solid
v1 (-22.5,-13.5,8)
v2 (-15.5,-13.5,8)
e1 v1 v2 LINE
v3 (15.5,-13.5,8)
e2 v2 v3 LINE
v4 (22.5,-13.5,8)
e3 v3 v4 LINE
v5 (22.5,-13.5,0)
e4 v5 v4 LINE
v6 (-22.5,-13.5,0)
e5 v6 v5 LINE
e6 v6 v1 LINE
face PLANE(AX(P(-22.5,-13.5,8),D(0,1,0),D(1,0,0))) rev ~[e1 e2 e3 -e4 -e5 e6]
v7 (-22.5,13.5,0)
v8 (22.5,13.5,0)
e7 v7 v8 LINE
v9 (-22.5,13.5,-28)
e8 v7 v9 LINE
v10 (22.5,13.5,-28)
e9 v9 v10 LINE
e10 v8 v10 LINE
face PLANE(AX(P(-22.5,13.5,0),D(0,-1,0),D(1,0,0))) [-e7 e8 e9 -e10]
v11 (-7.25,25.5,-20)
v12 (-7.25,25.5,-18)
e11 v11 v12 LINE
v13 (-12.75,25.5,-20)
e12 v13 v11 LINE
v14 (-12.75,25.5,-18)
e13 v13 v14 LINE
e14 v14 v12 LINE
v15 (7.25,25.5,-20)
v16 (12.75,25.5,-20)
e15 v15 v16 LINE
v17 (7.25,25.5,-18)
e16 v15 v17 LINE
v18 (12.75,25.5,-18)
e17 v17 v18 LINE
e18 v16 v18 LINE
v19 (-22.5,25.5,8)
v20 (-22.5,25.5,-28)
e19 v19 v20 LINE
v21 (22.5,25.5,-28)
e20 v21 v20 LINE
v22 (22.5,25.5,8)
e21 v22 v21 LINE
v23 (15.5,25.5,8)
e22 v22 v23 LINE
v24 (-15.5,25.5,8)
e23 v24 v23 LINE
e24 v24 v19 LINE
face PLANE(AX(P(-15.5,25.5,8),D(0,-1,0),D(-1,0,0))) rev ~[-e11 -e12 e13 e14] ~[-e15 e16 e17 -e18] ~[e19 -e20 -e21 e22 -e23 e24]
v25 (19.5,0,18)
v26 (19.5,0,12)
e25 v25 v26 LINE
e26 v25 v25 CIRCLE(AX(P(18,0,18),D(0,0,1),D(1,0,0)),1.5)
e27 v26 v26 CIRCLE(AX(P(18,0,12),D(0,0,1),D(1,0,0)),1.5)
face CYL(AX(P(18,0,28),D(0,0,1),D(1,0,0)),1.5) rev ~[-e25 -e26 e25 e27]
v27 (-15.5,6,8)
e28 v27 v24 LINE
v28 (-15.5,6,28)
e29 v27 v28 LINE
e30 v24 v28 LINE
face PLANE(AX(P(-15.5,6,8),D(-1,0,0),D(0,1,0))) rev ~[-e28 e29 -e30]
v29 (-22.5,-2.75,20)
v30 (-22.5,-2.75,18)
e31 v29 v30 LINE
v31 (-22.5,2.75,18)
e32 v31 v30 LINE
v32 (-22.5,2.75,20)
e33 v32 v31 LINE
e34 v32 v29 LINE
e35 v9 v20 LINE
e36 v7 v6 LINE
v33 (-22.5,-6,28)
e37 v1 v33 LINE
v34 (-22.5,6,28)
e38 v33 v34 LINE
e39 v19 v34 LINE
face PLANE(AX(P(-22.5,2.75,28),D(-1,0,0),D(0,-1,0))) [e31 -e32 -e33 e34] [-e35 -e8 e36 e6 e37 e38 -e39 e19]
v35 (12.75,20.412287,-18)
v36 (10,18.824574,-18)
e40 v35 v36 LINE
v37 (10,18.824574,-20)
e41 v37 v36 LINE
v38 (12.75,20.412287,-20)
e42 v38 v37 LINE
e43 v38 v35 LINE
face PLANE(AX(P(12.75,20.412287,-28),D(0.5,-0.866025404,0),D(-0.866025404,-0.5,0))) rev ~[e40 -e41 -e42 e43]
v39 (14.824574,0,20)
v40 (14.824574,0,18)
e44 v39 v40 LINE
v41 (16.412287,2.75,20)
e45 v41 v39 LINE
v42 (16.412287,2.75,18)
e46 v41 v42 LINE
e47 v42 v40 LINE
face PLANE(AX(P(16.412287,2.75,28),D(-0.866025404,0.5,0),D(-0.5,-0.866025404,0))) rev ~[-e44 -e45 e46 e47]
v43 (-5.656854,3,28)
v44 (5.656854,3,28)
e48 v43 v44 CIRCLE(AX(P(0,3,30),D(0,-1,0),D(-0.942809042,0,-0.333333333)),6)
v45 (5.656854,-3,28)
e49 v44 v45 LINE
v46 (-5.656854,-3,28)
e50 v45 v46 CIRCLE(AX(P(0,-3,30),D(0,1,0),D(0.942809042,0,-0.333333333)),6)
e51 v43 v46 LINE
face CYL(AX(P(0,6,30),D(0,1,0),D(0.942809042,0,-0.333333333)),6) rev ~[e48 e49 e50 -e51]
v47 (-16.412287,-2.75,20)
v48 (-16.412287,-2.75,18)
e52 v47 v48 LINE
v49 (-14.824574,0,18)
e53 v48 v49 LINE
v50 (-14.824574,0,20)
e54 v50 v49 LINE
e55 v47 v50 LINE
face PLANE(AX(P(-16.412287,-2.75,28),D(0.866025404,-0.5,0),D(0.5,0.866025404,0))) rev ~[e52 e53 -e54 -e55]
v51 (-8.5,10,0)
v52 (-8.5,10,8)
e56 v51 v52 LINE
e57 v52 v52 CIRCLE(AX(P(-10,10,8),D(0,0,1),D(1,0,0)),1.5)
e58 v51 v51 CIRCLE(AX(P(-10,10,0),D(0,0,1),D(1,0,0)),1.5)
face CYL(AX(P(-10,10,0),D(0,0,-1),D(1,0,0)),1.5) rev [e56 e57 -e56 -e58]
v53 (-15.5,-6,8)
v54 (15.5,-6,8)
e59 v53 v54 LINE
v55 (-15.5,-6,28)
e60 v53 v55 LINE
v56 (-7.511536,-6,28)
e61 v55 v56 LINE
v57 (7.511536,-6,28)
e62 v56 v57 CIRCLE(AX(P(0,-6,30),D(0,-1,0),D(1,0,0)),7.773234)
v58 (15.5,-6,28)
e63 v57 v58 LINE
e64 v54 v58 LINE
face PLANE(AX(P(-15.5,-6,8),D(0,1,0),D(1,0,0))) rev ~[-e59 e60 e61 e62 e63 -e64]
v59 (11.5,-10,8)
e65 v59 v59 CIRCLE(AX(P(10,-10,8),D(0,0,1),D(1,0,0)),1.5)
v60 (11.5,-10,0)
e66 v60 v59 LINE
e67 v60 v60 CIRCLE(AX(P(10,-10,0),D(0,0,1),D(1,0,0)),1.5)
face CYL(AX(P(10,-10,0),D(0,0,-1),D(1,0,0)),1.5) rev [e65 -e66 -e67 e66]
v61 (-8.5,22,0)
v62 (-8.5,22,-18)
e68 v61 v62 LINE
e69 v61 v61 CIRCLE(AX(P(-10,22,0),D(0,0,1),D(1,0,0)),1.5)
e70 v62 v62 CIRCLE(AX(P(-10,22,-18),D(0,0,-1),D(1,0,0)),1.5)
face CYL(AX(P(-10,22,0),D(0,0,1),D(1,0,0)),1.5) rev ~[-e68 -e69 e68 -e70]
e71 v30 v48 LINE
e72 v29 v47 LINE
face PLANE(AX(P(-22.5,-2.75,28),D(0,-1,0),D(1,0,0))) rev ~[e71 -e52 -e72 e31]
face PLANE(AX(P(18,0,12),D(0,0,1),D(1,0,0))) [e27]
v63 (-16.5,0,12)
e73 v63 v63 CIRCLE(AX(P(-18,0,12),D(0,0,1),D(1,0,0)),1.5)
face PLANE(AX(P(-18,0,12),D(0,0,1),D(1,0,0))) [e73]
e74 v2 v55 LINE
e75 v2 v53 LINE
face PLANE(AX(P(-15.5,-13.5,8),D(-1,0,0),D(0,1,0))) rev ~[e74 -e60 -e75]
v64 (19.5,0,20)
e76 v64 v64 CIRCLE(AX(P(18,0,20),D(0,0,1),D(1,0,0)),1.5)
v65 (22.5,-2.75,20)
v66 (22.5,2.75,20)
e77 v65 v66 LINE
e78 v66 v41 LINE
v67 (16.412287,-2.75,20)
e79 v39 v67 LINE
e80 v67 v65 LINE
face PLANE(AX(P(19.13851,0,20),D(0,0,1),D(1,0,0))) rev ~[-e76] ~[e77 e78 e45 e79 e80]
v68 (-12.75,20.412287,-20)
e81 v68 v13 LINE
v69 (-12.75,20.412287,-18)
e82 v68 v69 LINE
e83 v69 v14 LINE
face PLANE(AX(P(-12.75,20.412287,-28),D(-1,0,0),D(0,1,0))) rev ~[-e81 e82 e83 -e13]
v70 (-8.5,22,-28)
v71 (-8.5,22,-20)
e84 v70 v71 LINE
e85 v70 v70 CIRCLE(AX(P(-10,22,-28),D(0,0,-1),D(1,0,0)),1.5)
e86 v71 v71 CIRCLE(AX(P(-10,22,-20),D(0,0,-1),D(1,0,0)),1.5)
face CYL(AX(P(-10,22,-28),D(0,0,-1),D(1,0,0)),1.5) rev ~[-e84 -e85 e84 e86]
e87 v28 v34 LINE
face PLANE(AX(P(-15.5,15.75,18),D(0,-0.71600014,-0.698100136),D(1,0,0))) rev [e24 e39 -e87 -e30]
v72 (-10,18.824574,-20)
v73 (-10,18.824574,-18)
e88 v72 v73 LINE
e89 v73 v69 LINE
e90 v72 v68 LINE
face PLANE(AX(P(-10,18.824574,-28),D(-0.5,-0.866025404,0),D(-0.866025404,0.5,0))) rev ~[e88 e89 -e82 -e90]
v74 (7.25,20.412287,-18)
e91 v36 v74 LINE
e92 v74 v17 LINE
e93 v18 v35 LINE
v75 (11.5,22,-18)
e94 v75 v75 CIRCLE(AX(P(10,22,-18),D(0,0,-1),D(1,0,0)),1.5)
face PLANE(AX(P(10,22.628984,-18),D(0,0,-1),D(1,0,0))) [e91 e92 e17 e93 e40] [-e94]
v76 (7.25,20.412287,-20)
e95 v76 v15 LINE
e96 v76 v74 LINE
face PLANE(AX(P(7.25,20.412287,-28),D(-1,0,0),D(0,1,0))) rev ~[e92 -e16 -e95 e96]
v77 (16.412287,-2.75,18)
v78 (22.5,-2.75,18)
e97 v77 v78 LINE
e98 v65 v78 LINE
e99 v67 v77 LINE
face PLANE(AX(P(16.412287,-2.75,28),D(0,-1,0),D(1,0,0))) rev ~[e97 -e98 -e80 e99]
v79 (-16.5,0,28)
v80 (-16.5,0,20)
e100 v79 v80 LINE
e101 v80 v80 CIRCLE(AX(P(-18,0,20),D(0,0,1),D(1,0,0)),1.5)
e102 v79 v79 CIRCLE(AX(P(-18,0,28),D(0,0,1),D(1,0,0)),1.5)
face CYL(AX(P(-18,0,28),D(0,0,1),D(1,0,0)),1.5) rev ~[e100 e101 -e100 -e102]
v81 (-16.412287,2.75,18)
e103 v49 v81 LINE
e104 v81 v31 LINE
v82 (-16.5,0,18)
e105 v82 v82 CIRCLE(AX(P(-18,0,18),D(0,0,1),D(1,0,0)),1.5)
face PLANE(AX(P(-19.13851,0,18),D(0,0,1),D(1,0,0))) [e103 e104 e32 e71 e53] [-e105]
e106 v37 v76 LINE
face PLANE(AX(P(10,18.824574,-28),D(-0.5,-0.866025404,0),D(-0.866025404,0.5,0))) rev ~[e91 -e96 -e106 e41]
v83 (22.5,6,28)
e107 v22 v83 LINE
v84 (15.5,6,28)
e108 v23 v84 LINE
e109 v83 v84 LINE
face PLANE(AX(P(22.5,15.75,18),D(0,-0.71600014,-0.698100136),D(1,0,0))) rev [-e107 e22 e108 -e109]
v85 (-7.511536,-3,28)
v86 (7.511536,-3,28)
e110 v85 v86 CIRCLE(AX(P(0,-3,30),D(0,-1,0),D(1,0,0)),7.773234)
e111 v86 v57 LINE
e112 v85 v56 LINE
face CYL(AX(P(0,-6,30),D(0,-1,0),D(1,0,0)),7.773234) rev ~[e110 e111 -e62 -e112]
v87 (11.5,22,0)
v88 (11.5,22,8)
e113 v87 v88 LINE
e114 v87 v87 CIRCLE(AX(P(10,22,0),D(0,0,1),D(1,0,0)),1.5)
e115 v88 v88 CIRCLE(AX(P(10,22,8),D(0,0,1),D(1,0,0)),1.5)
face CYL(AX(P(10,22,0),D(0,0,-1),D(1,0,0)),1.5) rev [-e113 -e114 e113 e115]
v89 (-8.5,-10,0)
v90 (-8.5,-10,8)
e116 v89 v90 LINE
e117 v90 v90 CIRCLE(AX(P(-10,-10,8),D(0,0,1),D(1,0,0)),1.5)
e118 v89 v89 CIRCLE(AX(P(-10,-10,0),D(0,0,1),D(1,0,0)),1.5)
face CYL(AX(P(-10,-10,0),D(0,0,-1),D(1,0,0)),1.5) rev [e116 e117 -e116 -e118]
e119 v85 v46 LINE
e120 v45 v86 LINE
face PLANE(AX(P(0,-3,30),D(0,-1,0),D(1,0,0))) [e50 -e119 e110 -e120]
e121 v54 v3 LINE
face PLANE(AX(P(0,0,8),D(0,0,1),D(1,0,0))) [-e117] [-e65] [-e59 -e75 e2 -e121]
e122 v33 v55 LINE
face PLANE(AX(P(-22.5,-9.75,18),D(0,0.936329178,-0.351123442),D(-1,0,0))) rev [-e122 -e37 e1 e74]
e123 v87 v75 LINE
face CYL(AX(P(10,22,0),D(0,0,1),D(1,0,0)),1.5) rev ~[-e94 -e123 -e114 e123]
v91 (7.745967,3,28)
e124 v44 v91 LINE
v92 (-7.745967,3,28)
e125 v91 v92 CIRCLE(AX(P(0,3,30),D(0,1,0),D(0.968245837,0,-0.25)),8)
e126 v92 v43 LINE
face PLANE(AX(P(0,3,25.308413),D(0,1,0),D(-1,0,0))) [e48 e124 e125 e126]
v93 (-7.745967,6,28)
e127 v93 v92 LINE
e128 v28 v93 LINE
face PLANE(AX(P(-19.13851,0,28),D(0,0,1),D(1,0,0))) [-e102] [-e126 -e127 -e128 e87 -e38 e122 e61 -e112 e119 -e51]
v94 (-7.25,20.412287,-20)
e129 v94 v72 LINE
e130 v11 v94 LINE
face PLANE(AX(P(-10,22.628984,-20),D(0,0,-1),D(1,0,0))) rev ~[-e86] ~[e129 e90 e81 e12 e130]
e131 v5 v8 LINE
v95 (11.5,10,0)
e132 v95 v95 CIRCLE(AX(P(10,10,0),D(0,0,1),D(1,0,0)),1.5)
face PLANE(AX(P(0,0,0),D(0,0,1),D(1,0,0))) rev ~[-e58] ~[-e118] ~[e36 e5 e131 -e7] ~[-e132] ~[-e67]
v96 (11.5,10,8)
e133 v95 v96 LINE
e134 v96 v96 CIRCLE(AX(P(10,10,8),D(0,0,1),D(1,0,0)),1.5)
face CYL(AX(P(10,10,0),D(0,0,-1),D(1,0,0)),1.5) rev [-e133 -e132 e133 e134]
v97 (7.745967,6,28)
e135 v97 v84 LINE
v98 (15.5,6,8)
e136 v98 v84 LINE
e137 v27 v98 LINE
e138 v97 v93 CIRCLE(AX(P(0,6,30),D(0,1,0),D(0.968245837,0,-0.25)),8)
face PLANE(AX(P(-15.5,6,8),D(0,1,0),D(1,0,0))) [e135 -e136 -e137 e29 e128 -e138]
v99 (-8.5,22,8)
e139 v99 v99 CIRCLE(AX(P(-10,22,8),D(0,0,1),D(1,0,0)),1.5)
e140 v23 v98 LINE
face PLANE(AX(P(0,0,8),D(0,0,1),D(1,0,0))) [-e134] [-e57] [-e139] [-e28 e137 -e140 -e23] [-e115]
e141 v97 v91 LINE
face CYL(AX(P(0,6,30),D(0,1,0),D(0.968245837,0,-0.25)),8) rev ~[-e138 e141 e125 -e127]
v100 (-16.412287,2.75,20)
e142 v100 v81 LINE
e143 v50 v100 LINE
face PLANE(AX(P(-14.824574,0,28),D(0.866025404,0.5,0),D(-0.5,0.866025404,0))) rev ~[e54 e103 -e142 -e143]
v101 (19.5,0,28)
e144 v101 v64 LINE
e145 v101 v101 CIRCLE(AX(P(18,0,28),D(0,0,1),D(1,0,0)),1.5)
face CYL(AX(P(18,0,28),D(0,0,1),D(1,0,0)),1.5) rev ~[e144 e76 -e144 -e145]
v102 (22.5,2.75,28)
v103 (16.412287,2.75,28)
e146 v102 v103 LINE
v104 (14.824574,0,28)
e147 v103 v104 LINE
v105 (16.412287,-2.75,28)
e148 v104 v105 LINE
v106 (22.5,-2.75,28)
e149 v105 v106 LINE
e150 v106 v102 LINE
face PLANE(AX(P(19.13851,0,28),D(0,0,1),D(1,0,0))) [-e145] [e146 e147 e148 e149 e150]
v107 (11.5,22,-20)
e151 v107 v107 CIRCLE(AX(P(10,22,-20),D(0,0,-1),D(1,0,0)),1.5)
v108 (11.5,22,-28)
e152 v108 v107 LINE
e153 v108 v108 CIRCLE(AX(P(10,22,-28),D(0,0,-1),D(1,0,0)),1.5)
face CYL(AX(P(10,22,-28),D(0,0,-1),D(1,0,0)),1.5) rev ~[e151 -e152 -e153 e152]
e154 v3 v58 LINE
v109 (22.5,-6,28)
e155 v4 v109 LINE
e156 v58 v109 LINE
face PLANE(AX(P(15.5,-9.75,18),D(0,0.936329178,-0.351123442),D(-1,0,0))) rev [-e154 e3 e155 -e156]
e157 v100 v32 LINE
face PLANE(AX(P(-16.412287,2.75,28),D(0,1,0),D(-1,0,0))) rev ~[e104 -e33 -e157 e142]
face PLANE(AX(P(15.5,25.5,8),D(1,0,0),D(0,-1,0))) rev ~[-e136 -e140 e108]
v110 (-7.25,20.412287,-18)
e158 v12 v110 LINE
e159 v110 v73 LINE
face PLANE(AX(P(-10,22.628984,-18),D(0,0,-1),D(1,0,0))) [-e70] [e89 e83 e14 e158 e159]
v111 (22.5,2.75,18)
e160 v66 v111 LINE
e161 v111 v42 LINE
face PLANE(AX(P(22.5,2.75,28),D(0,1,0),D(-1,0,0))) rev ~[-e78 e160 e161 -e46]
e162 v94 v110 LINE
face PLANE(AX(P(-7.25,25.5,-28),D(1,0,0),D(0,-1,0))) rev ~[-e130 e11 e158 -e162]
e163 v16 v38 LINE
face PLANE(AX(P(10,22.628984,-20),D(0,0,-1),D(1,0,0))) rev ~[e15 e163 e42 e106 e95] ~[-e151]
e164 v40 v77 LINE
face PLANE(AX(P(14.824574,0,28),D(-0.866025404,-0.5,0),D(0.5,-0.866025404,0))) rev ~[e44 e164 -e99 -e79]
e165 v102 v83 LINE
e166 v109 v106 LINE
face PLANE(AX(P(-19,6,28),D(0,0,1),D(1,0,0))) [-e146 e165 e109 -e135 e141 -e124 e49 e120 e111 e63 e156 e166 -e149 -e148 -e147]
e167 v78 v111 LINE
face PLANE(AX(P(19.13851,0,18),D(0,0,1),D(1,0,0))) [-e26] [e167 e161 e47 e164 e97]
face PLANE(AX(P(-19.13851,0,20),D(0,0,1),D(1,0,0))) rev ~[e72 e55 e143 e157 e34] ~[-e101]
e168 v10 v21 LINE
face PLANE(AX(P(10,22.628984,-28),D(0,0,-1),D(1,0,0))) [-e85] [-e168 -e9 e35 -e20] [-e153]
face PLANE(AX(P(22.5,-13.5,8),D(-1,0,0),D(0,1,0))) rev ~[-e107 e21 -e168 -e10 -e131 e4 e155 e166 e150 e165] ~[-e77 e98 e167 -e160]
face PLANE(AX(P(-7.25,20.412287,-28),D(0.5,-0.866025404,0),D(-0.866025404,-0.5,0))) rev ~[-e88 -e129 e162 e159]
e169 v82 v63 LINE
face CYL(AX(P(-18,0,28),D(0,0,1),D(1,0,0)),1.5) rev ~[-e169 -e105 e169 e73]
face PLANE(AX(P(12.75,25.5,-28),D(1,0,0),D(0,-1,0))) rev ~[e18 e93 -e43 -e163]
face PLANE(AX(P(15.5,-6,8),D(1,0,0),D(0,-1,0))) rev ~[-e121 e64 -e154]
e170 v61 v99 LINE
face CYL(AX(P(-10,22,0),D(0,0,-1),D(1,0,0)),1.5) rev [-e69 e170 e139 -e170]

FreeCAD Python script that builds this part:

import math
import FreeCAD as App
import Part
import Sketcher
from FreeCAD import Vector
Q = App.Units.Quantity


def edges_at(feature, points):
    """Names of the edges that pass closest to the given points."""
    edges = feature.Shape.Edges
    near = lambda p: min(range(len(edges)), key=lambda i: edges[i].distToShape(Part.Vertex(*p))[0])
    return sorted({f"Edge{near(p) + 1}" for p in points})

doc = App.newDocument("Part")
body = doc.addObject("PartDesign::Body", "Body")

sketch1 = body.newObject("Sketcher::SketchObject", "Sketch")
sketch1.AttachmentSupport = (doc.getObject("XY_Plane"), [""])
sketch1.MapMode = "FlatFace"
sketch1.addGeometry([
    Part.LineSegment(Vector(-22.5, -13.5, 0), Vector(22.5, -13.5, 0)),
    Part.LineSegment(Vector(22.5, -13.5, 0), Vector(22.5, 25.5, 0)),
    Part.LineSegment(Vector(22.5, 25.5, 0), Vector(-22.5, 25.5, 0)),
    Part.LineSegment(Vector(-22.5, 25.5, 0), Vector(-22.5, -13.5, 0)),
    Part.Circle(Vector(-10, -10, 0), Vector(0, 0, 1), 1.5),
    Part.Circle(Vector(10, -10, 0), Vector(0, 0, 1), 1.5),
    Part.Circle(Vector(-10, 10, 0), Vector(0, 0, 1), 1.5),
    Part.Circle(Vector(-10, 22, 0), Vector(0, 0, 1), 1.5),
    Part.Circle(Vector(10, 10, 0), Vector(0, 0, 1), 1.5),
    Part.Circle(Vector(10, 22, 0), Vector(0, 0, 1), 1.5),
], False)
sketch1.addConstraint([
    Sketcher.Constraint("Coincident", 0, 2, 1, 1),
    Sketcher.Constraint("Coincident", 1, 2, 2, 1),
    Sketcher.Constraint("Coincident", 2, 2, 3, 1),
    Sketcher.Constraint("Coincident", 3, 2, 0, 1),
    Sketcher.Constraint("Horizontal", 0),
    Sketcher.Constraint("Vertical", 1),
    Sketcher.Constraint("Horizontal", 2),
    Sketcher.Constraint("Vertical", 3),
    Sketcher.Constraint("Equal", 4, 5),
    Sketcher.Constraint("Equal", 5, 6),
    Sketcher.Constraint("Equal", 6, 7),
    Sketcher.Constraint("Equal", 7, 8),
    Sketcher.Constraint("Equal", 8, 9),
    Sketcher.Constraint("Symmetric", 5, 3, 6, 3, -1, 1),
    Sketcher.Constraint("Symmetric", 4, 3, 8, 3, -1, 1),
    Sketcher.Constraint("Symmetric", 4, 3, 5, 3, -2),
    Sketcher.Constraint("Symmetric", 7, 3, 9, 3, -2),
    Sketcher.Constraint("Vertical", 6, 3, 7, 3),
    Sketcher.Constraint("Diameter", 4, Q("3 mm")),
    Sketcher.Constraint("DistanceX", 0, 1, 0, 2, Q("45 mm")),
    Sketcher.Constraint("DistanceY", 1, 1, 1, 2, Q("39 mm")),
    Sketcher.Constraint("DistanceX", 4, 3, -1, 1, Q("10 mm")),
    Sketcher.Constraint("DistanceY", 4, 3, -1, 1, Q("10 mm")),
    Sketcher.Constraint("DistanceY", -1, 1, 7, 3, Q("22 mm")),
    Sketcher.Constraint("DistanceX", -1, 1, 0, 2, Q("22.5 mm")),
    Sketcher.Constraint("DistanceY", 0, 2, -1, 1, Q("13.5 mm")),
])
pad1 = body.newObject("PartDesign::Pad", "Pad")
pad1.Profile = sketch1
pad1.Length = 8

sketch2 = body.newObject("Sketcher::SketchObject", "Sketch001")
sketch2.AttachmentSupport = (doc.getObject("XY_Plane"), [""])
sketch2.MapMode = "FlatFace"
sketch2.addGeometry([
    Part.LineSegment(Vector(-22.5, 25.5, 0), Vector(-22.5, 13.5, 0)),
    Part.LineSegment(Vector(-22.5, 13.5, 0), Vector(22.5, 13.5, 0)),
    Part.LineSegment(Vector(22.5, 13.5, 0), Vector(22.5, 25.5, 0)),
    Part.LineSegment(Vector(22.5, 25.5, 0), Vector(-22.5, 25.5, 0)),
    Part.Circle(Vector(-10, 22, 0), Vector(0, 0, 1), 1.5),
    Part.Circle(Vector(10, 22, 0), Vector(0, 0, 1), 1.5),
], False)
sketch2.addConstraint([
    Sketcher.Constraint("Coincident", 0, 2, 1, 1),
    Sketcher.Constraint("Coincident", 1, 2, 2, 1),
    Sketcher.Constraint("Coincident", 2, 2, 3, 1),
    Sketcher.Constraint("Coincident", 3, 2, 0, 1),
    Sketcher.Constraint("Vertical", 0),
    Sketcher.Constraint("Horizontal", 1),
    Sketcher.Constraint("Vertical", 2),
    Sketcher.Constraint("Horizontal", 3),
    Sketcher.Constraint("Equal", 4, 5),
    Sketcher.Constraint("Symmetric", 4, 3, 5, 3, -2),
    Sketcher.Constraint("Diameter", 4, Q("3 mm")),
    Sketcher.Constraint("DistanceX", 1, 1, 1, 2, Q("45 mm")),
    Sketcher.Constraint("DistanceY", 0, 2, 0, 1, Q("12 mm")),
    Sketcher.Constraint("DistanceX", 4, 3, -1, 1, Q("10 mm")),
    Sketcher.Constraint("DistanceY", -1, 1, 4, 3, Q("22 mm")),
    Sketcher.Constraint("DistanceX", 0, 2, -1, 1, Q("22.5 mm")),
    Sketcher.Constraint("DistanceY", -1, 1, 0, 2, Q("13.5 mm")),
])
pad2 = body.newObject("PartDesign::Pad", "Pad001")
pad2.Profile = sketch2
pad2.Length = 28
pad2.Reversed = True

sketch3 = body.newObject("Sketcher::SketchObject", "Sketch002")
sketch3.AttachmentSupport = (doc.getObject("XY_Plane"), [""])
sketch3.MapMode = "FlatFace"
sketch3.AttachmentOffset = App.Placement(Vector(0, 0, -28), App.Rotation())
sketch3.addGeometry([
    Part.LineSegment(Vector(-7.25, 20.412287, 0), Vector(-10, 18.824574, 0)),
    Part.LineSegment(Vector(-10, 18.824574, 0), Vector(-12.75, 20.412287, 0)),
    Part.LineSegment(Vector(-12.75, 20.412287, 0), Vector(-12.75, 25.5, 0)),
    Part.LineSegment(Vector(-12.75, 25.5, 0), Vector(-7.25, 25.5, 0)),
    Part.LineSegment(Vector(-7.25, 25.5, 0), Vector(-7.25, 20.412287, 0)),
    Part.Circle(Vector(-10, 22, 0), Vector(0, 0, 1), 1.5),
    Part.LineSegment(Vector(7.25, 25.5, 0), Vector(12.75, 25.5, 0)),
    Part.LineSegment(Vector(12.75, 25.5, 0), Vector(12.75, 20.412287, 0)),
    Part.LineSegment(Vector(12.75, 20.412287, 0), Vector(10, 18.824574, 0)),
    Part.LineSegment(Vector(10, 18.824574, 0), Vector(7.25, 20.412287, 0)),
    Part.LineSegment(Vector(7.25, 20.412287, 0), Vector(7.25, 25.5, 0)),
    Part.Circle(Vector(10, 22, 0), Vector(0, 0, 1), 1.5),
], False)
sketch3.addConstraint([
    Sketcher.Constraint("Coincident", 0, 2, 1, 1),
    Sketcher.Constraint("Coincident", 1, 2, 2, 1),
    Sketcher.Constraint("Coincident", 2, 2, 3, 1),
    Sketcher.Constraint("Coincident", 3, 2, 4, 1),
    Sketcher.Constraint("Coincident", 4, 2, 0, 1),
    Sketcher.Constraint("Coincident", 6, 2, 7, 1),
    Sketcher.Constraint("Coincident", 7, 2, 8, 1),
    Sketcher.Constraint("Coincident", 8, 2, 9, 1),
    Sketcher.Constraint("Coincident", 9, 2, 10, 1),
    Sketcher.Constraint("Coincident", 10, 2, 6, 1),
    Sketcher.Constraint("Vertical", 2),
    Sketcher.Constraint("Horizontal", 3),
    Sketcher.Constraint("Vertical", 4),
    Sketcher.Constraint("Horizontal", 6),
    Sketcher.Constraint("Vertical", 7),
    Sketcher.Constraint("Vertical", 10),
    Sketcher.Constraint("Equal", 5, 11),
    Sketcher.Constraint("Symmetric", 5, 3, 11, 3, -2),
    Sketcher.Constraint("Symmetric", 2, 2, 6, 2, -2),
    Sketcher.Constraint("Symmetric", 0, 2, 8, 2, -2),
    Sketcher.Constraint("Symmetric", 4, 2, 9, 2, -2),
    Sketcher.Constraint("Parallel", 0, 8),
    Sketcher.Constraint("Parallel", 1, 9),
    Sketcher.Constraint("Horizontal", 1, 2, 4, 2),
    Sketcher.Constraint("Vertical", 5, 3, 0, 2),
    Sketcher.Constraint("Diameter", 5, Q("3 mm")),
    Sketcher.Constraint("Angle", 0, Q("-150 deg")),
    Sketcher.Constraint("DistanceX", 3, 1, 3, 2, Q("5.5 mm")),
    Sketcher.Constraint("DistanceX", 5, 3, -1, 1, Q("10 mm")),
    Sketcher.Constraint("DistanceY", -1, 1, 5, 3, Q("22 mm")),
    Sketcher.Constraint("DistanceY", -1, 1, 2, 2, Q("25.5 mm")),
    Sketcher.Constraint("DistanceY", 2, 1, 2, 2, Q("5.087713 mm")),
])
pocket1 = body.newObject("PartDesign::Pocket", "Pocket")
pocket1.Profile = sketch3
pocket1.Length = 10
pocket1.Reversed = True

sketch4 = body.newObject("Sketcher::SketchObject", "Sketch003")
sketch4.AttachmentSupport = (doc.getObject("XY_Plane"), [""])
sketch4.MapMode = "FlatFace"
sketch4.AttachmentOffset = App.Placement(Vector(0, 0, -28), App.Rotation())
sketch4.addGeometry([
    Part.LineSegment(Vector(7.25, 25.5, 0), Vector(12.75, 25.5, 0)),
    Part.LineSegment(Vector(12.75, 25.5, 0), Vector(12.75, 20.412287, 0)),
    Part.LineSegment(Vector(12.75, 20.412287, 0), Vector(10, 18.824574, 0)),
    Part.LineSegment(Vector(10, 18.824574, 0), Vector(7.25, 20.412287, 0)),
    Part.LineSegment(Vector(7.25, 20.412287, 0), Vector(7.25, 25.5, 0)),
    Part.Circle(Vector(10, 22, 0), Vector(0, 0, 1), 1.5),
    Part.LineSegment(Vector(-7.25, 20.412287, 0), Vector(-10, 18.824574, 0)),
    Part.LineSegment(Vector(-10, 18.824574, 0), Vector(-12.75, 20.412287, 0)),
    Part.LineSegment(Vector(-12.75, 20.412287, 0), Vector(-12.75, 25.5, 0)),
    Part.LineSegment(Vector(-12.75, 25.5, 0), Vector(-7.25, 25.5, 0)),
    Part.LineSegment(Vector(-7.25, 25.5, 0), Vector(-7.25, 20.412287, 0)),
    Part.Circle(Vector(-10, 22, 0), Vector(0, 0, 1), 1.5),
], False)
sketch4.addConstraint([
    Sketcher.Constraint("Coincident", 0, 2, 1, 1),
    Sketcher.Constraint("Coincident", 1, 2, 2, 1),
    Sketcher.Constraint("Coincident", 2, 2, 3, 1),
    Sketcher.Constraint("Coincident", 3, 2, 4, 1),
    Sketcher.Constraint("Coincident", 4, 2, 0, 1),
    Sketcher.Constraint("Coincident", 6, 2, 7, 1),
    Sketcher.Constraint("Coincident", 7, 2, 8, 1),
    Sketcher.Constraint("Coincident", 8, 2, 9, 1),
    Sketcher.Constraint("Coincident", 9, 2, 10, 1),
    Sketcher.Constraint("Coincident", 10, 2, 6, 1),
    Sketcher.Constraint("Horizontal", 0),
    Sketcher.Constraint("Vertical", 1),
    Sketcher.Constraint("Vertical", 4),
    Sketcher.Constraint("Vertical", 8),
    Sketcher.Constraint("Horizontal", 9),
    Sketcher.Constraint("Vertical", 10),
    Sketcher.Constraint("Equal", 5, 11),
    Sketcher.Constraint("Symmetric", 5, 3, 11, 3, -2),
    Sketcher.Constraint("Symmetric", 2, 2, 6, 2, -2),
    Sketcher.Constraint("Symmetric", 1, 2, 7, 2, -2),
    Sketcher.Constraint("Symmetric", 4, 2, 9, 2, -2),
    Sketcher.Constraint("Parallel", 2, 6),
    Sketcher.Constraint("Parallel", 3, 7),
    Sketcher.Constraint("Horizontal", 1, 2, 3, 2),
    Sketcher.Constraint("Vertical", 5, 3, 2, 2),
    Sketcher.Constraint("Diameter", 5, Q("3 mm")),
    Sketcher.Constraint("Angle", 2, Q("-150 deg")),
    Sketcher.Constraint("DistanceX", 0, 1, 0, 2, Q("5.5 mm")),
    Sketcher.Constraint("DistanceX", -1, 1, 5, 3, Q("10 mm")),
    Sketcher.Constraint("DistanceY", -1, 1, 5, 3, Q("22 mm")),
    Sketcher.Constraint("DistanceY", -1, 1, 0, 2, Q("25.5 mm")),
    Sketcher.Constraint("DistanceY", 1, 2, 1, 1, Q("5.087713 mm")),
])
pad3 = body.newObject("PartDesign::Pad", "Pad002")
pad3.Profile = sketch4
pad3.Length = 8

sketch5 = body.newObject("Sketcher::SketchObject", "Sketch004")
sketch5.AttachmentSupport = (doc.getObject("XY_Plane"), [""])
sketch5.MapMode = "FlatFace"
sketch5.AttachmentOffset = App.Placement(Vector(0, 0, 8), App.Rotation())
sketch5.addGeometry([
    Part.LineSegment(Vector(-22.5, 25.5, 0), Vector(-22.5, -13.5, 0)),
    Part.LineSegment(Vector(-22.5, -13.5, 0), Vector(-15.5, -13.5, 0)),
    Part.LineSegment(Vector(-15.5, -13.5, 0), Vector(-15.5, -6, 0)),
    Part.LineSegment(Vector(-15.5, -6, 0), Vector(15.5, -6, 0)),
    Part.LineSegment(Vector(15.5, -6, 0), Vector(15.5, -13.5, 0)),
    Part.LineSegment(Vector(15.5, -13.5, 0), Vector(22.5, -13.5, 0)),
    Part.LineSegment(Vector(22.5, -13.5, 0), Vector(22.5, 25.5, 0)),
    Part.LineSegment(Vector(22.5, 25.5, 0), Vector(15.5, 25.5, 0)),
    Part.LineSegment(Vector(15.5, 25.5, 0), Vector(15.5, 6, 0)),
    Part.LineSegment(Vector(15.5, 6, 0), Vector(-15.5, 6, 0)),
    Part.LineSegment(Vector(-15.5, 6, 0), Vector(-15.5, 25.5, 0)),
    Part.LineSegment(Vector(-15.5, 25.5, 0), Vector(-22.5, 25.5, 0)),
], False)
sketch5.addConstraint([
    Sketcher.Constraint("Coincident", 0, 2, 1, 1),
    Sketcher.Constraint("Coincident", 1, 2, 2, 1),
    Sketcher.Constraint("Coincident", 2, 2, 3, 1),
    Sketcher.Constraint("Coincident", 3, 2, 4, 1),
    Sketcher.Constraint("Coincident", 4, 2, 5, 1),
    Sketcher.Constraint("Coincident", 5, 2, 6, 1),
    Sketcher.Constraint("Coincident", 6, 2, 7, 1),
    Sketcher.Constraint("Coincident", 7, 2, 8, 1),
    Sketcher.Constraint("Coincident", 8, 2, 9, 1),
    Sketcher.Constraint("Coincident", 9, 2, 10, 1),
    Sketcher.Constraint("Coincident", 10, 2, 11, 1),
    Sketcher.Constraint("Coincident", 11, 2, 0, 1),
    Sketcher.Constraint("Vertical", 0),
    Sketcher.Constraint("Horizontal", 1),
    Sketcher.Constraint("Vertical", 2),
    Sketcher.Constraint("Horizontal", 3),
    Sketcher.Constraint("Vertical", 4),
    Sketcher.Constraint("Horizontal", 5),
    Sketcher.Constraint("Vertical", 6),
    Sketcher.Constraint("Horizontal", 7),
    Sketcher.Constraint("Vertical", 8),
    Sketcher.Constraint("Horizontal", 9),
    Sketcher.Constraint("Vertical", 10),
    Sketcher.Constraint("Horizontal", 11),
    Sketcher.Constraint("Symmetric", 2, 2, 8, 2, -1, 1),
    Sketcher.Constraint("Symmetric", 1, 2, 4, 2, -2),
    Sketcher.Constraint("Symmetric", 7, 2, 10, 2, -2),
    Sketcher.Constraint("Equal", 1, 5),
    Sketcher.Constraint("DistanceX", 1, 1, 1, 2, Q("7 mm")),
    Sketcher.Constraint("DistanceX", 3, 1, 3, 2, Q("31 mm")),
    Sketcher.Constraint("DistanceY", 0, 2, 0, 1, Q("39 mm")),
    Sketcher.Constraint("DistanceY", 2, 1, 2, 2, Q("7.5 mm")),
    Sketcher.Constraint("DistanceY", 8, 2, 8, 1, Q("19.5 mm")),
])
pad4 = body.newObject("PartDesign::Pad", "Pad003")
pad4.Profile = sketch5
pad4.Length = 20
doc.recompute()

chamfer = body.newObject("PartDesign::Chamfer", "Chamfer")
chamfer.Base = (pad4, edges_at(pad4, [(-19, 25.5, 28), (19, 25.5, 28)]))
chamfer.ChamferType = "Two distances"
chamfer.Size = 20
chamfer.Size2 = 19.5
chamfer.FlipDirection = True
doc.recompute()

chamfer2 = body.newObject("PartDesign::Chamfer", "Chamfer001")
chamfer2.Base = (chamfer, edges_at(chamfer, [(19, -13.5, 28), (-19, -13.5, 28)]))
chamfer2.ChamferType = "Two distances"
chamfer2.Size = 20
chamfer2.Size2 = 7.5
chamfer2.FlipDirection = True

sketch6 = body.newObject("Sketcher::SketchObject", "Sketch005")
sketch6.AttachmentSupport = (doc.getObject("XZ_Plane"), [""])
sketch6.MapMode = "FlatFace"
sketch6.AttachmentOffset = App.Placement(Vector(0, 0, -6), App.Rotation())
sketch6.addGeometry([
    Part.LineSegment(Vector(-5.656854, 28, 0), Vector(5.656854, 28, 0)),
    Part.ArcOfCircle(Part.Circle(Vector(0, 30, 0), Vector(0, 0, 1), 6), math.radians(-160.528779), math.radians(-19.471221)),
], False)
sketch6.addConstraint([
    Sketcher.Constraint("Coincident", 0, 1, 1, 1),
    Sketcher.Constraint("Coincident", 1, 2, 0, 2),
    Sketcher.Constraint("Horizontal", 0),
    Sketcher.Constraint("PointOnObject", 1, 3, -2),
    Sketcher.Constraint("Radius", 1, Q("6 mm")),
    Sketcher.Constraint("DistanceY", -1, 1, 1, 3, Q("30 mm")),
    Sketcher.Constraint("DistanceY", -1, 1, 0, 1, Q("28 mm")),
])
pocket2 = body.newObject("PartDesign::Pocket", "Pocket001")
pocket2.Profile = sketch6
pocket2.Type = "ThroughAll"
pocket2.Reversed = True

sketch7 = body.newObject("Sketcher::SketchObject", "Sketch006")
sketch7.AttachmentSupport = (doc.getObject("XZ_Plane"), [""])
sketch7.MapMode = "FlatFace"
sketch7.AttachmentOffset = App.Placement(Vector(0, 0, -6), App.Rotation())
sketch7.addGeometry([
    Part.LineSegment(Vector(5.656854, 28, 0), Vector(7.745967, 28, 0)),
    Part.ArcOfCircle(Part.Circle(Vector(0, 30, 0), Vector(0, 0, 1), 8), math.radians(-165.522488), math.radians(-14.477512)),
    Part.LineSegment(Vector(-7.745967, 28, 0), Vector(-5.656854, 28, 0)),
    Part.ArcOfCircle(Part.Circle(Vector(0, 30, 0), Vector(0, 0, 1), 6), math.radians(-160.528779), math.radians(-19.471221)),
], False)
sketch7.addConstraint([
    Sketcher.Constraint("Coincident", 0, 2, 1, 2),
    Sketcher.Constraint("Coincident", 1, 1, 2, 1),
    Sketcher.Constraint("Coincident", 2, 2, 3, 1),
    Sketcher.Constraint("Coincident", 3, 2, 0, 1),
    Sketcher.Constraint("Horizontal", 0),
    Sketcher.Constraint("Horizontal", 2),
    Sketcher.Constraint("Coincident", 3, 3, 1, 3),
    Sketcher.Constraint("Symmetric", 0, 2, 1, 1, -2),
    Sketcher.Constraint("Radius", 1, Q("8 mm")),
    Sketcher.Constraint("Radius", 3, Q("6 mm")),
    Sketcher.Constraint("DistanceY", -1, 1, 1, 3, Q("30 mm")),
    Sketcher.Constraint("DistanceY", -1, 1, 0, 2, Q("28 mm")),
])
pocket3 = body.newObject("PartDesign::Pocket", "Pocket002")
pocket3.Profile = sketch7
pocket3.Length = 3
pocket3.Reversed = True

sketch8 = body.newObject("Sketcher::SketchObject", "Sketch007")
sketch8.AttachmentSupport = (doc.getObject("XZ_Plane"), [""])
sketch8.MapMode = "FlatFace"
sketch8.AttachmentOffset = App.Placement(Vector(0, 0, 6), App.Rotation())
sketch8.addGeometry(Part.Circle(Vector(0, 30, 0), Vector(0, 0, 1), 7.773234), False)
sketch8.addConstraint([
    Sketcher.Constraint("PointOnObject", 0, 3, -2),
    Sketcher.Constraint("DistanceY", -1, 1, 0, 3, Q("30 mm")),
    Sketcher.Constraint("Diameter", 0, Q("15.546468 mm")),
])
pocket4 = body.newObject("PartDesign::Pocket", "Pocket003")
pocket4.Profile = sketch8
pocket4.Length = 3

sketch9 = body.newObject("Sketcher::SketchObject", "Sketch008")
sketch9.AttachmentSupport = (doc.getObject("XY_Plane"), [""])
sketch9.MapMode = "FlatFace"
sketch9.AttachmentOffset = App.Placement(Vector(0, 0, 28), App.Rotation())
sketch9.addGeometry([
    Part.LineSegment(Vector(-16.412287, -2.75, 0), Vector(-14.824574, 0, 0)),
    Part.LineSegment(Vector(-14.824574, 0, 0), Vector(-16.412287, 2.75, 0)),
    Part.LineSegment(Vector(-16.412287, 2.75, 0), Vector(-22.5, 2.75, 0)),
    Part.LineSegment(Vector(-22.5, 2.75, 0), Vector(-22.5, -2.75, 0)),
    Part.LineSegment(Vector(-22.5, -2.75, 0), Vector(-16.412287, -2.75, 0)),
    Part.LineSegment(Vector(14.824574, 0, 0), Vector(16.412287, -2.75, 0)),
    Part.LineSegment(Vector(16.412287, -2.75, 0), Vector(22.5, -2.75, 0)),
    Part.LineSegment(Vector(22.5, -2.75, 0), Vector(22.5, 2.75, 0)),
    Part.LineSegment(Vector(22.5, 2.75, 0), Vector(16.412287, 2.75, 0)),
    Part.LineSegment(Vector(16.412287, 2.75, 0), Vector(14.824574, 0, 0)),
], False)
sketch9.addConstraint([
    Sketcher.Constraint("Coincident", 0, 2, 1, 1),
    Sketcher.Constraint("Coincident", 1, 2, 2, 1),
    Sketcher.Constraint("Coincident", 2, 2, 3, 1),
    Sketcher.Constraint("Coincident", 3, 2, 4, 1),
    Sketcher.Constraint("Coincident", 4, 2, 0, 1),
    Sketcher.Constraint("Coincident", 5, 2, 6, 1),
    Sketcher.Constraint("Coincident", 6, 2, 7, 1),
    Sketcher.Constraint("Coincident", 7, 2, 8, 1),
    Sketcher.Constraint("Coincident", 8, 2, 9, 1),
    Sketcher.Constraint("Coincident", 9, 2, 5, 1),
    Sketcher.Constraint("Horizontal", 2),
    Sketcher.Constraint("Vertical", 3),
    Sketcher.Constraint("Horizontal", 4),
    Sketcher.Constraint("Horizontal", 6),
    Sketcher.Constraint("Vertical", 7),
    Sketcher.Constraint("Horizontal", 8),
    Sketcher.Constraint("Symmetric", 1, 2, 5, 2, -1, 1),
    Sketcher.Constraint("Symmetric", 3, 2, 7, 2, -1, 1),
    Sketcher.Constraint("Symmetric", 0, 2, 9, 2, -1, 1),
    Sketcher.Constraint("Symmetric", 4, 2, 5, 2, -2),
    Sketcher.Constraint("PointOnObject", 0, 2, -1),
    Sketcher.Constraint("Parallel", 0, 9),
    Sketcher.Constraint("Angle", 0, Q("60 deg")),
    Sketcher.Constraint("DistanceY", 3, 2, 3, 1, Q("5.5 mm")),
    Sketcher.Constraint("DistanceX", 3, 2, 6, 2, Q("45 mm")),
    Sketcher.Constraint("DistanceX", 2, 2, 2, 1, Q("6.087713 mm")),
])
pocket5 = body.newObject("PartDesign::Pocket", "Pocket004")
pocket5.Profile = sketch9
pocket5.Length = 10

sketch10 = body.newObject("Sketcher::SketchObject", "Sketch009")
sketch10.AttachmentSupport = (doc.getObject("XY_Plane"), [""])
sketch10.MapMode = "FlatFace"
sketch10.AttachmentOffset = App.Placement(Vector(0, 0, 28), App.Rotation())
sketch10.addGeometry([
    Part.LineSegment(Vector(-16.412287, -2.75, 0), Vector(-14.824574, 0, 0)),
    Part.LineSegment(Vector(-14.824574, 0, 0), Vector(-16.412287, 2.75, 0)),
    Part.LineSegment(Vector(-16.412287, 2.75, 0), Vector(-22.5, 2.75, 0)),
    Part.LineSegment(Vector(-22.5, 2.75, 0), Vector(-22.5, -2.75, 0)),
    Part.LineSegment(Vector(-22.5, -2.75, 0), Vector(-16.412287, -2.75, 0)),
    Part.LineSegment(Vector(14.824574, 0, 0), Vector(16.412287, -2.75, 0)),
    Part.LineSegment(Vector(16.412287, -2.75, 0), Vector(22.5, -2.75, 0)),
    Part.LineSegment(Vector(22.5, -2.75, 0), Vector(22.5, 2.75, 0)),
    Part.LineSegment(Vector(22.5, 2.75, 0), Vector(16.412287, 2.75, 0)),
    Part.LineSegment(Vector(16.412287, 2.75, 0), Vector(14.824574, 0, 0)),
], False)
sketch10.addConstraint([
    Sketcher.Constraint("Coincident", 0, 2, 1, 1),
    Sketcher.Constraint("Coincident", 1, 2, 2, 1),
    Sketcher.Constraint("Coincident", 2, 2, 3, 1),
    Sketcher.Constraint("Coincident", 3, 2, 4, 1),
    Sketcher.Constraint("Coincident", 4, 2, 0, 1),
    Sketcher.Constraint("Coincident", 5, 2, 6, 1),
    Sketcher.Constraint("Coincident", 6, 2, 7, 1),
    Sketcher.Constraint("Coincident", 7, 2, 8, 1),
    Sketcher.Constraint("Coincident", 8, 2, 9, 1),
    Sketcher.Constraint("Coincident", 9, 2, 5, 1),
    Sketcher.Constraint("Horizontal", 2),
    Sketcher.Constraint("Vertical", 3),
    Sketcher.Constraint("Horizontal", 4),
    Sketcher.Constraint("Horizontal", 6),
    Sketcher.Constraint("Vertical", 7),
    Sketcher.Constraint("Horizontal", 8),
    Sketcher.Constraint("Symmetric", 1, 2, 5, 2, -1, 1),
    Sketcher.Constraint("Symmetric", 3, 2, 7, 2, -1, 1),
    Sketcher.Constraint("Symmetric", 0, 2, 9, 2, -1, 1),
    Sketcher.Constraint("Symmetric", 4, 2, 5, 2, -2),
    Sketcher.Constraint("PointOnObject", 0, 2, -1),
    Sketcher.Constraint("Parallel", 0, 9),
    Sketcher.Constraint("Angle", 0, Q("60 deg")),
    Sketcher.Constraint("DistanceY", 3, 2, 3, 1, Q("5.5 mm")),
    Sketcher.Constraint("DistanceX", 3, 2, 6, 2, Q("45 mm")),
    Sketcher.Constraint("DistanceX", 2, 2, 2, 1, Q("6.087713 mm")),
])
pad5 = body.newObject("PartDesign::Pad", "Pad004")
pad5.Profile = sketch10
pad5.Length = 8
pad5.Reversed = True

sketch11 = body.newObject("Sketcher::SketchObject", "Sketch010")
sketch11.AttachmentSupport = (doc.getObject("XY_Plane"), [""])
sketch11.MapMode = "FlatFace"
sketch11.AttachmentOffset = App.Placement(Vector(0, 0, 28), App.Rotation())
sketch11.addGeometry([
    Part.Circle(Vector(-18, 0, 0), Vector(0, 0, 1), 1.5),
    Part.Circle(Vector(18, 0, 0), Vector(0, 0, 1), 1.5),
], False)
sketch11.addConstraint([
    Sketcher.Constraint("Equal", 0, 1),
    Sketcher.Constraint("Symmetric", 0, 3, 1, 3, -1, 1),
    Sketcher.Constraint("PointOnObject", 0, 3, -1),
    Sketcher.Constraint("Diameter", 0, Q("3 mm")),
    Sketcher.Constraint("DistanceX", 0, 3, -1, 1, Q("18 mm")),
])
pocket6 = body.newObject("PartDesign::Pocket", "Pocket005")
pocket6.Profile = sketch11
pocket6.Length = 16

doc.recompute()
